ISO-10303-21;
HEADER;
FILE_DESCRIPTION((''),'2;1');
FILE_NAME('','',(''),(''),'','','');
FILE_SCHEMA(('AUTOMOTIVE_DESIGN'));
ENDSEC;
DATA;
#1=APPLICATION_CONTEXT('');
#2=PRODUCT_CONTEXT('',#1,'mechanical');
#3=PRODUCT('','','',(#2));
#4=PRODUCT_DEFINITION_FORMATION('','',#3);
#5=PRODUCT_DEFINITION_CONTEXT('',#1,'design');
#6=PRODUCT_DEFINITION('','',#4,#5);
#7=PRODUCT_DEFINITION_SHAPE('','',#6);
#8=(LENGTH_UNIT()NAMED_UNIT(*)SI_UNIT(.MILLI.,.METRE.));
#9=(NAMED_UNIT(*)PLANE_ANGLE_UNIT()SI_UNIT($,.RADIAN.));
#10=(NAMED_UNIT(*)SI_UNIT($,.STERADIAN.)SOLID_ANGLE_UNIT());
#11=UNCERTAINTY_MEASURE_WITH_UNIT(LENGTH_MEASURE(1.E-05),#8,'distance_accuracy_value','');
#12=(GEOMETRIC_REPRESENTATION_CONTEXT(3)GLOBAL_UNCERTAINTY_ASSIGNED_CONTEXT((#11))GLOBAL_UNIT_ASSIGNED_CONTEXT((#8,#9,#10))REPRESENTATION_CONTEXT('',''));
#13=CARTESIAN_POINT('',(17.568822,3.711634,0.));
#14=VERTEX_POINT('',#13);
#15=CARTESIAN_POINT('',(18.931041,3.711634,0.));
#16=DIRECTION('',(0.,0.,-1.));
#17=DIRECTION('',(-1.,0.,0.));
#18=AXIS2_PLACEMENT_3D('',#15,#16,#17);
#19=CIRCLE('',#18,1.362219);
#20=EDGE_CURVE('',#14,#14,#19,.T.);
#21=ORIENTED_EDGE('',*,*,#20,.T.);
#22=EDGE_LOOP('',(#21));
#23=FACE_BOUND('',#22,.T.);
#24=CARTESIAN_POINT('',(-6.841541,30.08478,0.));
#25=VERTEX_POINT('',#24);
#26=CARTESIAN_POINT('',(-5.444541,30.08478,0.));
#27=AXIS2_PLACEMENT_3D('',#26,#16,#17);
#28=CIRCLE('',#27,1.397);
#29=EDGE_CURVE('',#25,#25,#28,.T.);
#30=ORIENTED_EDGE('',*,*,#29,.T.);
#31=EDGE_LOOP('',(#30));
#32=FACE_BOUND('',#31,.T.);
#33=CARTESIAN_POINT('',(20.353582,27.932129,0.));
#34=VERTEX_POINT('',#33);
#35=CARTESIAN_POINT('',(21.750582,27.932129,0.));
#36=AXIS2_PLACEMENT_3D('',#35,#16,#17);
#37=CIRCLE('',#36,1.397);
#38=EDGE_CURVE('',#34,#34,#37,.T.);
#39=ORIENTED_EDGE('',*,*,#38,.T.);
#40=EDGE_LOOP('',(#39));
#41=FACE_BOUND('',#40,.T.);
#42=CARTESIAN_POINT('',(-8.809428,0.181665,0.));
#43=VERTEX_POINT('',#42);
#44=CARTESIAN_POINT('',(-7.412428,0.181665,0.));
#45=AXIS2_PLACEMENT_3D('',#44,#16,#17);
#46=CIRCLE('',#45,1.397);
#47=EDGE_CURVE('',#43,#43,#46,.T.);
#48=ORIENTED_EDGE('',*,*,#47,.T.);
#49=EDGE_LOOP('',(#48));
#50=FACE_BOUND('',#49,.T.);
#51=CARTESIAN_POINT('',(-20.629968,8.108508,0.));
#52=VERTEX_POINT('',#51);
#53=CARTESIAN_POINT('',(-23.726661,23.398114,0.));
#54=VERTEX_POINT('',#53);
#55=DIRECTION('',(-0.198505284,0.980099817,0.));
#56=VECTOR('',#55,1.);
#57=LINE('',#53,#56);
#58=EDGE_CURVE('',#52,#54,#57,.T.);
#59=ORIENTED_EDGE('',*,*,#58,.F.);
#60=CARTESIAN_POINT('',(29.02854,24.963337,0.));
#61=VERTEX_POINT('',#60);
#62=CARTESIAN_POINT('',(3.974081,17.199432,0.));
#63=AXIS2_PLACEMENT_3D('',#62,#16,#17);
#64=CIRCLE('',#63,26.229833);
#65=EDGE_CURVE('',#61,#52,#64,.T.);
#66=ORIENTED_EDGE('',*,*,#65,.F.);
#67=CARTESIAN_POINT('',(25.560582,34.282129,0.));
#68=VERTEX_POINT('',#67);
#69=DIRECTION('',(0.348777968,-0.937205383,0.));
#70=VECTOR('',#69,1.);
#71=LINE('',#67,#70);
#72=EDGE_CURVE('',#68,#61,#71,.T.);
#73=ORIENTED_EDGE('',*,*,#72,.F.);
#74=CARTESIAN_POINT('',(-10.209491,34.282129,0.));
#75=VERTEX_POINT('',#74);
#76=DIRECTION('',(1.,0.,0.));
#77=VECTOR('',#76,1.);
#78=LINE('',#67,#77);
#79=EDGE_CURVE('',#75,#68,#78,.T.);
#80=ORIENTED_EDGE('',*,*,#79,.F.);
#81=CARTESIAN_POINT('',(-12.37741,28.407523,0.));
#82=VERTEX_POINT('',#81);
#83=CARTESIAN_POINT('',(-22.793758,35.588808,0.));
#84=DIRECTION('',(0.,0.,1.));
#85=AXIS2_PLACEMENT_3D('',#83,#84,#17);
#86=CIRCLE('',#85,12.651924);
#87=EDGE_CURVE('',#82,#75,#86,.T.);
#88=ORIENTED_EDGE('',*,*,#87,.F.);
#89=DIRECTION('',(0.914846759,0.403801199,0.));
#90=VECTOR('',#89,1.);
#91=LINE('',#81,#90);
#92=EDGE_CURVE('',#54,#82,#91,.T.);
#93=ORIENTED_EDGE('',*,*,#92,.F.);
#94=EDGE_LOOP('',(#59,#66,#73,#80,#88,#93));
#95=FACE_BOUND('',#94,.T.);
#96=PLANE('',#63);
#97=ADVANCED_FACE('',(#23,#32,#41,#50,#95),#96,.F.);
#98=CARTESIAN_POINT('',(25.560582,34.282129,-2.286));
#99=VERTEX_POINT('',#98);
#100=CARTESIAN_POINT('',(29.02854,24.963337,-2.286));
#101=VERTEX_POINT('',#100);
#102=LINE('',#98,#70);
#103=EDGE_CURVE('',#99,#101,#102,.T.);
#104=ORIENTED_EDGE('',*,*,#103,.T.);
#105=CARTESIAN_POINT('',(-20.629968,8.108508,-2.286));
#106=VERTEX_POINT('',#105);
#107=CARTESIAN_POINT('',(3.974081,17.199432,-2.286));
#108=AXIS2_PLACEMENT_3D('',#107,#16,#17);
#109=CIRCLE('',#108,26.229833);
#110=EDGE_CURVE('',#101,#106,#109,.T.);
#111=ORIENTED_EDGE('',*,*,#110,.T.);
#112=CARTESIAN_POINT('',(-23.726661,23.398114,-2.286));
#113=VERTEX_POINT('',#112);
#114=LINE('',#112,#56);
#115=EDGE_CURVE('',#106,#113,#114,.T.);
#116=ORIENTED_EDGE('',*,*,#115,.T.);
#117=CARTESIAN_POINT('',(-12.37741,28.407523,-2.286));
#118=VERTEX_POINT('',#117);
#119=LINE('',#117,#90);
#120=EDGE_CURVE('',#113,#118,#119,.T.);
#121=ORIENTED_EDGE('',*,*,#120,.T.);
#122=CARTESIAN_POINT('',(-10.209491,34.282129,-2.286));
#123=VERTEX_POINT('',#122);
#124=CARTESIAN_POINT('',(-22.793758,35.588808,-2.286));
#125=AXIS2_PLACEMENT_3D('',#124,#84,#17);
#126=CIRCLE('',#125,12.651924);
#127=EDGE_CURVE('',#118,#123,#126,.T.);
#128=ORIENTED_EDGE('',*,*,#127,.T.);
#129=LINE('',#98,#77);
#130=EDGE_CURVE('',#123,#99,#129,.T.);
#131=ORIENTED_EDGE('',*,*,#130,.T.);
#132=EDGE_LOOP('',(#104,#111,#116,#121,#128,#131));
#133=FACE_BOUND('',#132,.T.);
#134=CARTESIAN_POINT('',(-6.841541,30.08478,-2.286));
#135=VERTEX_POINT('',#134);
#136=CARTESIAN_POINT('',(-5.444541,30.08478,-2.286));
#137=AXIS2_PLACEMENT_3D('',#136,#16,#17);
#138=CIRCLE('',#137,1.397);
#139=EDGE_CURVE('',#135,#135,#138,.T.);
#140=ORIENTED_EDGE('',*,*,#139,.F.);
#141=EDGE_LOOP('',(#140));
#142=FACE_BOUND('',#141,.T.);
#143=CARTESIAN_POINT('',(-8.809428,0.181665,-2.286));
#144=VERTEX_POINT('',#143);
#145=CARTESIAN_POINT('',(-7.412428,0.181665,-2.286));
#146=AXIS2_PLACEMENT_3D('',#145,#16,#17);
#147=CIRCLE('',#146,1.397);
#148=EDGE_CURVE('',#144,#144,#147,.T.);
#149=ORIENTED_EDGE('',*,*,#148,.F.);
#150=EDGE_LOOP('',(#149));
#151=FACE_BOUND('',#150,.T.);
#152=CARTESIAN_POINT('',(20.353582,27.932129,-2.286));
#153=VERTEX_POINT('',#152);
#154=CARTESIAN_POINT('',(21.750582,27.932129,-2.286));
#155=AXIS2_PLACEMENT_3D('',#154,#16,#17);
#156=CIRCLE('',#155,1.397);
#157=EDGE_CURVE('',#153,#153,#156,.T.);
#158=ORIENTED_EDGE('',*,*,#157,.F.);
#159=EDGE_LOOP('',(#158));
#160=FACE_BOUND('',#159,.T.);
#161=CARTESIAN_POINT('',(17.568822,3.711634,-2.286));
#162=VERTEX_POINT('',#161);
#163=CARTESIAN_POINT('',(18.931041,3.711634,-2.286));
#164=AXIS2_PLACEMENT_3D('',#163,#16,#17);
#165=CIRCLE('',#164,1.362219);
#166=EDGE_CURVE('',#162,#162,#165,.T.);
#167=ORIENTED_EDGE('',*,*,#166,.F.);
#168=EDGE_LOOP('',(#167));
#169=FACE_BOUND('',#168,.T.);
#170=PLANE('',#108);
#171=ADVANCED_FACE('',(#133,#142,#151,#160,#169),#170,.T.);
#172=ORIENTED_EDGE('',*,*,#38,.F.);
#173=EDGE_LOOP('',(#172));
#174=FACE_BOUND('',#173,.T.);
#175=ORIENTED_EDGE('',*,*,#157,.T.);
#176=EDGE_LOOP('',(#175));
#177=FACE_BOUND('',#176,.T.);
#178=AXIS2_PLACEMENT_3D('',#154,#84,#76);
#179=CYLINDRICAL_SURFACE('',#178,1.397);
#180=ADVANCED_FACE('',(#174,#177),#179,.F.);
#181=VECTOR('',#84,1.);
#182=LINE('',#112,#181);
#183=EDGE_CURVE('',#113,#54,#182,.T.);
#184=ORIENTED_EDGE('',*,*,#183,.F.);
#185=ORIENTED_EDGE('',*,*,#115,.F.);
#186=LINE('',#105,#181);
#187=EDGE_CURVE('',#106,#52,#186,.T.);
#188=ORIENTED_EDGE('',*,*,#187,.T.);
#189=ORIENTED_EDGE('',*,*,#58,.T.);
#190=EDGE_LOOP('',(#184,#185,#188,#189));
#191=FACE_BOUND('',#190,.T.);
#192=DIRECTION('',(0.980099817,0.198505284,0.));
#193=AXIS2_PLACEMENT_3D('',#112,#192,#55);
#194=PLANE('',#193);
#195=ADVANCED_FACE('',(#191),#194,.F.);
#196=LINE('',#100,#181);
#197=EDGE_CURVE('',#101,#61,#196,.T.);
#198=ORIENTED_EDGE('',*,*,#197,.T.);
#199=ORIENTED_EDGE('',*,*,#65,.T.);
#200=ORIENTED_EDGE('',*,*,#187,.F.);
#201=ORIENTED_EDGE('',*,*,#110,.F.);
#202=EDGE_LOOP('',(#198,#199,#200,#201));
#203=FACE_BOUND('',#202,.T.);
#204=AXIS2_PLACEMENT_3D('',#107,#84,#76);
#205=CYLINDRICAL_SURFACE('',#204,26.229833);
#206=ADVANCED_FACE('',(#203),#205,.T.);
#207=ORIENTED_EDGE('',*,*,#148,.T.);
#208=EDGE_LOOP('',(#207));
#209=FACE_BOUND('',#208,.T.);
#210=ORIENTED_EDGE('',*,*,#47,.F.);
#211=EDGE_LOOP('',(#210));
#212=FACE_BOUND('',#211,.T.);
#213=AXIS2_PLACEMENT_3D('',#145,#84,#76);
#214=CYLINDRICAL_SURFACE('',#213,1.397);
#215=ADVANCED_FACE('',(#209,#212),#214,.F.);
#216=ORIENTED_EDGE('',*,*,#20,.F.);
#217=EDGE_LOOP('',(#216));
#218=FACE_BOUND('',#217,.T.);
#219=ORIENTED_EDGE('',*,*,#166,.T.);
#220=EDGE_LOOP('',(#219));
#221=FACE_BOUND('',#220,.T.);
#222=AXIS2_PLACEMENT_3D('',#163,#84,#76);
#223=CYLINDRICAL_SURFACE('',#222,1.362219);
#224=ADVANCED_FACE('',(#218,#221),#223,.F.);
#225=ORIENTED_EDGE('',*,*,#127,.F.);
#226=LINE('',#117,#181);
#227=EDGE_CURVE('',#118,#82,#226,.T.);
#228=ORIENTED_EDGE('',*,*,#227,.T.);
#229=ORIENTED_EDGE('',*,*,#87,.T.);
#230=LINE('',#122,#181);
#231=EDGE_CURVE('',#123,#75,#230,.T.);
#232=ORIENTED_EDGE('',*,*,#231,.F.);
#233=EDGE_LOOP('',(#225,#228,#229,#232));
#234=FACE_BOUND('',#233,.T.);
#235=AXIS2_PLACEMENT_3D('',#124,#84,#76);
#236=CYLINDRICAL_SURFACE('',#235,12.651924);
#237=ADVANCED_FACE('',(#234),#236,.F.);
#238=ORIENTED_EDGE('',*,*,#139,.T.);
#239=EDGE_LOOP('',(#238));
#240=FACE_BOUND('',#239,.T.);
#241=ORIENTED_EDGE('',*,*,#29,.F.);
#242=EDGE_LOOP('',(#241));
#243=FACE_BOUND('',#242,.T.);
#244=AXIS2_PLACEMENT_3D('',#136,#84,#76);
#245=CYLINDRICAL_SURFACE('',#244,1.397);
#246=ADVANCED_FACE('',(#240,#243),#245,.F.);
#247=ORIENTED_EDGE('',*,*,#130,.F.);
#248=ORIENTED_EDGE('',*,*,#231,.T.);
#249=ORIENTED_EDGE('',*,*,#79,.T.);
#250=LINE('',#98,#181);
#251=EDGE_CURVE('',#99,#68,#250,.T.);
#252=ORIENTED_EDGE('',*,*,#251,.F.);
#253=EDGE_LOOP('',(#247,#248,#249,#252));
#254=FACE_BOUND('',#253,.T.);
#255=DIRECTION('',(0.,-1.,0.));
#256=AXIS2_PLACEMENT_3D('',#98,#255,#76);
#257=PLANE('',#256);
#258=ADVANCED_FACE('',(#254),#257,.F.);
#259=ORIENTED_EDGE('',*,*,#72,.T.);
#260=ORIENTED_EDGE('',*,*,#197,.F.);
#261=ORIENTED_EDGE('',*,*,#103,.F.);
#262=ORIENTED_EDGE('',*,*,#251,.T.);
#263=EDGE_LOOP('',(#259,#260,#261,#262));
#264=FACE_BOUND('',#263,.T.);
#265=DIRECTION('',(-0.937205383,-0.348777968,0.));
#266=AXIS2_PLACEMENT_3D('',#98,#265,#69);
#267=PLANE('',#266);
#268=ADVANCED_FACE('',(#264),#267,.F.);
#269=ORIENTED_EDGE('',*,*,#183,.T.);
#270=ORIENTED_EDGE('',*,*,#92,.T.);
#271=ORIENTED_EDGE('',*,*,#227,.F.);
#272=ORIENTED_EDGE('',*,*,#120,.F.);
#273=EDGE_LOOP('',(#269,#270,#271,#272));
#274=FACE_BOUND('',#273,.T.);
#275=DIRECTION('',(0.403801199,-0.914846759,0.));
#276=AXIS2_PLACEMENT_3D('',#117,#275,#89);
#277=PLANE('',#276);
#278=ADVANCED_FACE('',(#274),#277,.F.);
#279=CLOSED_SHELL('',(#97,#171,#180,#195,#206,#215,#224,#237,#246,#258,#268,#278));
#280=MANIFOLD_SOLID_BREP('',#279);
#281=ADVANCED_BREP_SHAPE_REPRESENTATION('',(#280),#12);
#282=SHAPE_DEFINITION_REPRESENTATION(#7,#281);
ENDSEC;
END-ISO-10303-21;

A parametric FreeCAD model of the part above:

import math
import FreeCAD as App
import Part
import Sketcher
from FreeCAD import Vector
Q = App.Units.Quantity

doc = App.newDocument("Part")
body = doc.addObject("PartDesign::Body", "Body")

# Sketch on XY plane
sketch1 = body.newObject("Sketcher::SketchObject", "Sketch")
sketch1.AttachmentSupport = (doc.getObject("XY_Plane"), [""])
sketch1.MapMode = "FlatFace"
sketch1.addGeometry(Part.LineSegment(Vector(-10.2, 34.3, 0), Vector(25.6, 34.3, 0)), False)
sketch1.addGeometry(Part.LineSegment(Vector(25.6, 34.3, 0), Vector(29, 25, 0)), False)
sketch1.addGeometry(Part.ArcOfCircle(Part.Circle(Vector(4, 17.2, 0), Vector(0, 0, 1), 26.2), math.radians(-160), math.radians(17)), False)
sketch1.addGeometry(Part.LineSegment(Vector(-20.6, 8.1, 0), Vector(-23.7, 23.4, 0)), False)
sketch1.addGeometry(Part.LineSegment(Vector(-23.7, 23.4, 0), Vector(-12.4, 28.4, 0)), False)
sketch1.addGeometry(Part.ArcOfCircle(Part.Circle(Vector(-22.8, 35.6, 0), Vector(0, 0, 1), 12.7), math.radians(-35), math.radians(-6)), False)
sketch1.addGeometry(Part.Circle(Vector(-5.4, 30.1, 0), Vector(0, 0, 1), 1.4), False)
sketch1.addGeometry(Part.Circle(Vector(-7.4, 0.2, 0), Vector(0, 0, 1), 1.4), False)
sketch1.addGeometry(Part.Circle(Vector(21.8, 27.9, 0), Vector(0, 0, 1), 1.4), False)
sketch1.addGeometry(Part.Circle(Vector(18.9, 3.7, 0), Vector(0, 0, 1), 1.4), False)
sketch1.addConstraint(Sketcher.Constraint("Coincident", 0, 2, 1, 1))
sketch1.addConstraint(Sketcher.Constraint("Coincident", 1, 2, 2, 2))
sketch1.addConstraint(Sketcher.Constraint("Coincident", 2, 1, 3, 1))
sketch1.addConstraint(Sketcher.Constraint("Coincident", 3, 2, 4, 1))
sketch1.addConstraint(Sketcher.Constraint("Coincident", 4, 2, 5, 1))
sketch1.addConstraint(Sketcher.Constraint("Coincident", 5, 2, 0, 1))
sketch1.addConstraint(Sketcher.Constraint("Horizontal", 0))
sketch1.addConstraint(Sketcher.Constraint("Equal", 6, 7))
sketch1.addConstraint(Sketcher.Constraint("Equal", 7, 8))
sketch1.addConstraint(Sketcher.Constraint("Diameter", 6, Q("0.11 in")))
sketch1.addConstraint(Sketcher.Constraint("DistanceX", 8, 3, 0, 2, Q("0.15 in")))
sketch1.addConstraint(Sketcher.Constraint("DistanceY", 8, 3, 0, 2, Q("0.25 in")))
sketch1.addConstraint(Sketcher.Constraint("Diameter", 9, Q("2.724438 mm")))
sketch1.addConstraint(Sketcher.Constraint("Radius", 2, Q("26.229833 mm")))
sketch1.addConstraint(Sketcher.Constraint("Radius", 5, Q("12.651924 mm")))
sketch1.addConstraint(Sketcher.Constraint("DistanceX", 2, 3, 8, 3, Q("17.7765 mm")))
sketch1.addConstraint(Sketcher.Constraint("DistanceY", 9, 3, 2, 3, Q("13.487798 mm")))
sketch1.addConstraint(Sketcher.Constraint("DistanceX", 5, 3, 9, 3, Q("41.724799 mm")))
sketch1.addConstraint(Sketcher.Constraint("DistanceX", 9, 3, 1, 2, Q("10.097499 mm")))
sketch1.addConstraint(Sketcher.Constraint("DistanceY", 2, 1, 5, 3, Q("27.4803 mm")))
sketch1.addConstraint(Sketcher.Constraint("Distance", 1, Q("9.94317 mm")))
sketch1.addConstraint(Sketcher.Constraint("Distance", 3, Q("15.60005 mm")))
sketch1.addConstraint(Sketcher.Constraint("Distance", 4, Q("12.405631 mm")))
sketch1.addConstraint(Sketcher.Constraint("DistanceX", 0, 1, 0, 2, Q("35.770073 mm")))
sketch1.addConstraint(Sketcher.Constraint("DistanceX", -1, 1, 2, 3, Q("3.974081 mm")))
sketch1.addConstraint(Sketcher.Constraint("DistanceY", -1, 1, 2, 3, Q("17.199432 mm")))
sketch1.addConstraint(Sketcher.Constraint("DistanceY", -1, 1, 5, 3, Q("35.588808 mm")))
sketch1.addConstraint(Sketcher.Constraint("DistanceX", 6, 3, -1, 1, Q("5.444541 mm")))
sketch1.addConstraint(Sketcher.Constraint("DistanceY", -1, 1, 6, 3, Q("30.08478 mm")))
sketch1.addConstraint(Sketcher.Constraint("DistanceX", 3, 2, -1, 1, Q("23.726661 mm")))
sketch1.addConstraint(Sketcher.Constraint("DistanceX", 7, 3, 2, 3, Q("11.386509 mm")))
sketch1.addConstraint(Sketcher.Constraint("DistanceY", 7, 3, 9, 3, Q("3.529968 mm")))
pad1 = body.newObject("PartDesign::Pad", "Pad")
pad1.Profile = sketch1
pad1.Length = Q("0.09 in")
pad1.Reversed = True

doc.recompute()
